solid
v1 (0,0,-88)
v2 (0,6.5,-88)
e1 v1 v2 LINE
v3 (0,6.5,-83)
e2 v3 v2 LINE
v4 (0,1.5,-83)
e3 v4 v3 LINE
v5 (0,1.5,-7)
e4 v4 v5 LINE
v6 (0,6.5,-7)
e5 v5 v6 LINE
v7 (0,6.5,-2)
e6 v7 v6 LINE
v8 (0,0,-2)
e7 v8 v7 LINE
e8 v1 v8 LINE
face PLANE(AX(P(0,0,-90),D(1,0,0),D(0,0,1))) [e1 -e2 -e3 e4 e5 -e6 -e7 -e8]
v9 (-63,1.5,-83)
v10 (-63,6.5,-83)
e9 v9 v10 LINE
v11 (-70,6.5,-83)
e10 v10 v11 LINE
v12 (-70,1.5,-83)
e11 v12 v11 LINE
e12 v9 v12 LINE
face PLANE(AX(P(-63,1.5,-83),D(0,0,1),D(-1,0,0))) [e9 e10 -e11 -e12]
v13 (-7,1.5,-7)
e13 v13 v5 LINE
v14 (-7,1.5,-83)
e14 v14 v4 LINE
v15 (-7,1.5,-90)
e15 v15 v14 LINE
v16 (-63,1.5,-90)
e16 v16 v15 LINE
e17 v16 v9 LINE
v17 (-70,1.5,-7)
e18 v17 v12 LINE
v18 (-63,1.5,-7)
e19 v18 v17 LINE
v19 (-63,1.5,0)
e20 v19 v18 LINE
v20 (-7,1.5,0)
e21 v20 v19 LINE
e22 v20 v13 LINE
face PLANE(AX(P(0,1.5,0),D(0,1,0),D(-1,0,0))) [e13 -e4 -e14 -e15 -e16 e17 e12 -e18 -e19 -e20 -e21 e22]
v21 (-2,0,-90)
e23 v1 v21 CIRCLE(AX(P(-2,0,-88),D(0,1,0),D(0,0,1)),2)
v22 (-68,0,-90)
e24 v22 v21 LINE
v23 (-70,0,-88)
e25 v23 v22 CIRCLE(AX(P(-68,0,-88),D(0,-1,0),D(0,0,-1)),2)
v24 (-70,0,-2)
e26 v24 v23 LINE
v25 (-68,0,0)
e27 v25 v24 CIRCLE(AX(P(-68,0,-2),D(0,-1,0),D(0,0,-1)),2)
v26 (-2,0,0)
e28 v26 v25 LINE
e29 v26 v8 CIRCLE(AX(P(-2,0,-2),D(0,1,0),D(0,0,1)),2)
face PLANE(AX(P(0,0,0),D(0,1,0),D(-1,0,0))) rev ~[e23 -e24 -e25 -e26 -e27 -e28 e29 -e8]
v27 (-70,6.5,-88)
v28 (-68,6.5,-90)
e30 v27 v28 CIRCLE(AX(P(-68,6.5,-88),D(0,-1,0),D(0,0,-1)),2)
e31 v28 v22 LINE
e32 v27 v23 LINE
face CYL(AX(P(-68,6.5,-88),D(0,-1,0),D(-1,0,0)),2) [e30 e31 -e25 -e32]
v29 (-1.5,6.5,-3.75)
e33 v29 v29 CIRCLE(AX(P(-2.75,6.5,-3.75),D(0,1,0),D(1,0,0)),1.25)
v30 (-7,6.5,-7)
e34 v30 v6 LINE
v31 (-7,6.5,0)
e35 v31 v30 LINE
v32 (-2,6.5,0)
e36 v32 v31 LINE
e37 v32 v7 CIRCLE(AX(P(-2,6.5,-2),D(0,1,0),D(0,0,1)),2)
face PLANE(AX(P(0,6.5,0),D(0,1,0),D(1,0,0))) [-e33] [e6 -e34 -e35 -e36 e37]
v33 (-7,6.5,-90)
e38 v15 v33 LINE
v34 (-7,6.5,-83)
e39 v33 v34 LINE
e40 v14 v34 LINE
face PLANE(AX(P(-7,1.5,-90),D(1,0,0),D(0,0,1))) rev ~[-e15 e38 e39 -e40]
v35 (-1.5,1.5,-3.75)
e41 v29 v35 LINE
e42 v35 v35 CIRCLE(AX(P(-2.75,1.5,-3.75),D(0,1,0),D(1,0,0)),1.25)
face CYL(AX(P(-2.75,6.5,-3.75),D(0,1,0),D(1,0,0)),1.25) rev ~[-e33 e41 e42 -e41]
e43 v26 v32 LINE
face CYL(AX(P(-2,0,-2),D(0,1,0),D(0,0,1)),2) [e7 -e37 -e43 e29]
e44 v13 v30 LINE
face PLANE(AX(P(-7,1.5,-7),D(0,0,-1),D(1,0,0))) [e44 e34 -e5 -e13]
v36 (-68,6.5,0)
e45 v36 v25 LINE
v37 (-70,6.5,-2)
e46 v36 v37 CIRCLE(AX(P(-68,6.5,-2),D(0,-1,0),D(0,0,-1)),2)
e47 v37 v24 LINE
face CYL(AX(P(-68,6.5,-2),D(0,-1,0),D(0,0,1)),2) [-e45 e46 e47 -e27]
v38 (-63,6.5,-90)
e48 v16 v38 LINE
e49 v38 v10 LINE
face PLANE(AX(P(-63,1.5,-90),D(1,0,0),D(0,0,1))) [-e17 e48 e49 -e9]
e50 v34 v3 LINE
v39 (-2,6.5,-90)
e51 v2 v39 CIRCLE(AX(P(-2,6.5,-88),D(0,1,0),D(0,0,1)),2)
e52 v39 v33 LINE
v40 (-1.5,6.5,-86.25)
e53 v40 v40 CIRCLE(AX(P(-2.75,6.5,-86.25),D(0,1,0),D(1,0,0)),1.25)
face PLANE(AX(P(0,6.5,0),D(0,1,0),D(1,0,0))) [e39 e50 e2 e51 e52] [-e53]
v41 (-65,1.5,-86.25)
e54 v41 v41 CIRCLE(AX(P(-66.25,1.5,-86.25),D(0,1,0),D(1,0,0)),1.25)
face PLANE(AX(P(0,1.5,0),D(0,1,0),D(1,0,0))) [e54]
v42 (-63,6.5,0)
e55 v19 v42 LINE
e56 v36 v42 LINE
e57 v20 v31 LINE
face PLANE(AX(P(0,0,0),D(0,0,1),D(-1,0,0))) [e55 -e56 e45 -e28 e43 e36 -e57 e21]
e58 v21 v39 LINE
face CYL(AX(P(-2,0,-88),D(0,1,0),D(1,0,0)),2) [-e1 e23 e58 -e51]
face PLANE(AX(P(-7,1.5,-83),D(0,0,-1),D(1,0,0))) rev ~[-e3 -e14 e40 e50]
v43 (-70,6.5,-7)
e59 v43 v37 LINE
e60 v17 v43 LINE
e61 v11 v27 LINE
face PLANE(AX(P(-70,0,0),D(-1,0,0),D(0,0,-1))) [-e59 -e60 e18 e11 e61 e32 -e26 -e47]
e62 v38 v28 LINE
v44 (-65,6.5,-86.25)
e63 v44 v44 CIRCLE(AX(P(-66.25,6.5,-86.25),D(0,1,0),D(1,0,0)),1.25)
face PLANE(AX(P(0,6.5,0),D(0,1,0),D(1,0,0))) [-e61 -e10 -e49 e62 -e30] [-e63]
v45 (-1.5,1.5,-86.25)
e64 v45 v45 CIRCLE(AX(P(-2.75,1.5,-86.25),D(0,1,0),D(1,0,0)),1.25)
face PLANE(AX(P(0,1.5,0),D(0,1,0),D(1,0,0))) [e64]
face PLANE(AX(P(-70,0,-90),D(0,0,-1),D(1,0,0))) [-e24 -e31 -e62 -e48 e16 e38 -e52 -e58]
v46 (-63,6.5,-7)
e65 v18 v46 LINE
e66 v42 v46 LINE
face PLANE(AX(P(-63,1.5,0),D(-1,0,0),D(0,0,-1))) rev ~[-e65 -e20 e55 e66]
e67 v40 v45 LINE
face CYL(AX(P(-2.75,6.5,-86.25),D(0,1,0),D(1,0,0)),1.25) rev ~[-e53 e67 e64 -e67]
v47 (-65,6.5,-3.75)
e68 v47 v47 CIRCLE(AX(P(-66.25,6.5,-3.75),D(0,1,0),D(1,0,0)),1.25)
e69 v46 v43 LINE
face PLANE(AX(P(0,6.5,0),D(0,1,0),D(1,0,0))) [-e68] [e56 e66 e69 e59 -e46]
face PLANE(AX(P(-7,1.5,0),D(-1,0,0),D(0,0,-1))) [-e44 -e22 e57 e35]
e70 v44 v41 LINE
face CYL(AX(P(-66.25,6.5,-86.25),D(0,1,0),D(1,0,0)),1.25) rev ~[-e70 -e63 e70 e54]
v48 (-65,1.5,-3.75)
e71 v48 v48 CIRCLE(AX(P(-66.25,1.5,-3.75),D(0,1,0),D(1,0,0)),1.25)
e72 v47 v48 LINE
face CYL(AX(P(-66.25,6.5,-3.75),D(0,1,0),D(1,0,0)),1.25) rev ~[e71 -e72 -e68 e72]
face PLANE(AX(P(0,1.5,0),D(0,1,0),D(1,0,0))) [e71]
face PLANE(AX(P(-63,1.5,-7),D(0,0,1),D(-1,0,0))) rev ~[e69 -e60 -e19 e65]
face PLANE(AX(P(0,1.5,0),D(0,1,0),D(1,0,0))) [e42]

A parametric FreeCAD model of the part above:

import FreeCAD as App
import Part
import Sketcher
from FreeCAD import Vector


def edges_at(feature, points):
    """Names of the edges that pass closest to the given points."""
    edges = feature.Shape.Edges
    near = lambda p: min(range(len(edges)), key=lambda i: edges[i].distToShape(Part.Vertex(*p))[0])
    return sorted({f"Edge{near(p) + 1}" for p in points})


def add_polygon(sketch, points):
    """Adds a closed chain of lines whose ends are joined by coincident constraints."""
    first, n = sketch.GeometryCount, len(points)
    for a, b in zip(points, points[1:] + points[:1]):
        sketch.addGeometry(Part.LineSegment(App.Vector(*a, 0), App.Vector(*b, 0)), False)
    for i in range(n):
        sketch.addConstraint(Sketcher.Constraint("Coincident", first + i, 2, first + (i + 1) % n, 1))

doc = App.newDocument("Part")
body = doc.addObject("PartDesign::Body", "Body")

# Sketch on XZ plane
sketch1 = body.newObject("Sketcher::SketchObject", "Sketch")
sketch1.AttachmentSupport = (doc.getObject("XZ_Plane"), [""])
sketch1.MapMode = "FlatFace"
add_polygon(sketch1, [(-70, 0), (0, 0), (0, -90), (-70, -90)])  # lines 0-3
sketch1.addConstraint([
    Sketcher.Constraint("Horizontal", 0),
    Sketcher.Constraint("Vertical", 1),
    Sketcher.Constraint("Horizontal", 2),
    Sketcher.Constraint("Vertical", 3),
    Sketcher.Constraint("Coincident", 0, 2, -1, 1),
    Sketcher.Constraint("DistanceX", 0, 1, 0, 2, 70.0),
    Sketcher.Constraint("DistanceY", 1, 2, 1, 1, 90.0),
])
pad1 = body.newObject("PartDesign::Pad", "Pad")
pad1.Profile = sketch1
pad1.Length = 1.5
pad1.Reversed = True

# Sketch on XZ plane
sketch2 = body.newObject("Sketcher::SketchObject", "Sketch001")
sketch2.AttachmentSupport = (doc.getObject("XZ_Plane"), [""])
sketch2.MapMode = "FlatFace"
sketch2.AttachmentOffset = App.Placement(Vector(0, 0, -1.5), App.Rotation())
add_polygon(sketch2, [(-7, 0), (0, 0), (0, -7), (-7, -7)])  # lines 0-3
add_polygon(sketch2, [(-70, 0), (-63, 0), (-63, -7), (-70, -7)])  # lines 4-7
add_polygon(sketch2, [(-63, -83), (-63, -90), (-70, -90), (-70, -83)])  # lines 8-11
add_polygon(sketch2, [(-7, -83), (0, -83), (0, -90), (-7, -90)])  # lines 12-15
sketch2.addConstraint([
    Sketcher.Constraint("Horizontal", 0),
    Sketcher.Constraint("Vertical", 1),
    Sketcher.Constraint("Horizontal", 2),
    Sketcher.Constraint("Vertical", 3),
    Sketcher.Constraint("Horizontal", 4),
    Sketcher.Constraint("Vertical", 5),
    Sketcher.Constraint("Horizontal", 6),
    Sketcher.Constraint("Vertical", 7),
    Sketcher.Constraint("Vertical", 8),
    Sketcher.Constraint("Horizontal", 9),
    Sketcher.Constraint("Vertical", 10),
    Sketcher.Constraint("Horizontal", 11),
    Sketcher.Constraint("Horizontal", 12),
    Sketcher.Constraint("Vertical", 13),
    Sketcher.Constraint("Horizontal", 14),
    Sketcher.Constraint("Vertical", 15),
    Sketcher.Constraint("Coincident", 0, 2, -1, 1),
    Sketcher.Constraint("PointOnObject", 4, 2, -1),
    Sketcher.Constraint("PointOnObject", 12, 2, -2),
    Sketcher.Constraint("Horizontal", 2, 2, 5, 2),
    Sketcher.Constraint("Horizontal", 11, 2, 12, 2),
    Sketcher.Constraint("Horizontal", 9, 2, 13, 2),
    Sketcher.Constraint("Vertical", 5, 2, 8, 2),
    Sketcher.Constraint("Vertical", 7, 2, 9, 2),
    Sketcher.Constraint("Vertical", 3, 2, 14, 2),
    Sketcher.Constraint("Equal", 2, 4),
    Sketcher.Constraint("Equal", 14, 1),
    Sketcher.Constraint("Equal", 7, 8),
    Sketcher.Constraint("DistanceX", 0, 1, 0, 2, 7.0),
    Sketcher.Constraint("DistanceX", 4, 2, -1, 1, 63.0),
    Sketcher.Constraint("DistanceY", 8, 2, -1, 1, 90.0),
])
pad2 = body.newObject("PartDesign::Pad", "Pad001")
pad2.Profile = sketch2
pad2.Length = 5
pad2.Reversed = True

# Sketch on XZ plane
sketch3 = body.newObject("Sketcher::SketchObject", "Sketch002")
sketch3.AttachmentSupport = (doc.getObject("XZ_Plane"), [""])
sketch3.MapMode = "FlatFace"
sketch3.AttachmentOffset = App.Placement(Vector(0, 0, -6.5), App.Rotation())
sketch3.addGeometry([
    Part.Circle(Vector(-2.75, -86.25, 0), Vector(0, 0, 1), 1.25),
    Part.Circle(Vector(-66.25, -86.25, 0), Vector(0, 0, 1), 1.25),
    Part.Circle(Vector(-66.25, -3.75, 0), Vector(0, 0, 1), 1.25),
    Part.Circle(Vector(-2.75, -3.75, 0), Vector(0, 0, 1), 1.25),
], False)
sketch3.addConstraint([
    Sketcher.Constraint("Equal", 0, 1),
    Sketcher.Constraint("Equal", 1, 2),
    Sketcher.Constraint("Equal", 2, 3),
    Sketcher.Constraint("Horizontal", 0, 3, 1, 3),
    Sketcher.Constraint("Horizontal", 2, 3, 3, 3),
    Sketcher.Constraint("Vertical", 1, 3, 2, 3),
    Sketcher.Constraint("Vertical", 0, 3, 3, 3),
    Sketcher.Constraint("Diameter", 0, 2.5),
    Sketcher.Constraint("DistanceX", 0, 3, -1, 1, 2.75),
    Sketcher.Constraint("DistanceY", 2, 3, -1, 1, 3.75),
    Sketcher.Constraint("DistanceX", 1, 3, 0, 3, 63.5),
    Sketcher.Constraint("DistanceY", 1, 3, 2, 3, 82.5),
])
pocket1 = body.newObject("PartDesign::Pocket", "Pocket")
pocket1.Profile = sketch3
pocket1.Length = 5
pocket1.Reversed = True
doc.recompute()

fillet = body.newObject("PartDesign::Fillet", "Fillet")
fillet.Base = (pocket1, edges_at(pocket1, [
    (0, 3.25, 0),
    (0, 3.25, -90),
    (-70, 3.25, -90),
    (-70, 3.25, 0),
]))
fillet.Radius = 2

doc.recompute()
